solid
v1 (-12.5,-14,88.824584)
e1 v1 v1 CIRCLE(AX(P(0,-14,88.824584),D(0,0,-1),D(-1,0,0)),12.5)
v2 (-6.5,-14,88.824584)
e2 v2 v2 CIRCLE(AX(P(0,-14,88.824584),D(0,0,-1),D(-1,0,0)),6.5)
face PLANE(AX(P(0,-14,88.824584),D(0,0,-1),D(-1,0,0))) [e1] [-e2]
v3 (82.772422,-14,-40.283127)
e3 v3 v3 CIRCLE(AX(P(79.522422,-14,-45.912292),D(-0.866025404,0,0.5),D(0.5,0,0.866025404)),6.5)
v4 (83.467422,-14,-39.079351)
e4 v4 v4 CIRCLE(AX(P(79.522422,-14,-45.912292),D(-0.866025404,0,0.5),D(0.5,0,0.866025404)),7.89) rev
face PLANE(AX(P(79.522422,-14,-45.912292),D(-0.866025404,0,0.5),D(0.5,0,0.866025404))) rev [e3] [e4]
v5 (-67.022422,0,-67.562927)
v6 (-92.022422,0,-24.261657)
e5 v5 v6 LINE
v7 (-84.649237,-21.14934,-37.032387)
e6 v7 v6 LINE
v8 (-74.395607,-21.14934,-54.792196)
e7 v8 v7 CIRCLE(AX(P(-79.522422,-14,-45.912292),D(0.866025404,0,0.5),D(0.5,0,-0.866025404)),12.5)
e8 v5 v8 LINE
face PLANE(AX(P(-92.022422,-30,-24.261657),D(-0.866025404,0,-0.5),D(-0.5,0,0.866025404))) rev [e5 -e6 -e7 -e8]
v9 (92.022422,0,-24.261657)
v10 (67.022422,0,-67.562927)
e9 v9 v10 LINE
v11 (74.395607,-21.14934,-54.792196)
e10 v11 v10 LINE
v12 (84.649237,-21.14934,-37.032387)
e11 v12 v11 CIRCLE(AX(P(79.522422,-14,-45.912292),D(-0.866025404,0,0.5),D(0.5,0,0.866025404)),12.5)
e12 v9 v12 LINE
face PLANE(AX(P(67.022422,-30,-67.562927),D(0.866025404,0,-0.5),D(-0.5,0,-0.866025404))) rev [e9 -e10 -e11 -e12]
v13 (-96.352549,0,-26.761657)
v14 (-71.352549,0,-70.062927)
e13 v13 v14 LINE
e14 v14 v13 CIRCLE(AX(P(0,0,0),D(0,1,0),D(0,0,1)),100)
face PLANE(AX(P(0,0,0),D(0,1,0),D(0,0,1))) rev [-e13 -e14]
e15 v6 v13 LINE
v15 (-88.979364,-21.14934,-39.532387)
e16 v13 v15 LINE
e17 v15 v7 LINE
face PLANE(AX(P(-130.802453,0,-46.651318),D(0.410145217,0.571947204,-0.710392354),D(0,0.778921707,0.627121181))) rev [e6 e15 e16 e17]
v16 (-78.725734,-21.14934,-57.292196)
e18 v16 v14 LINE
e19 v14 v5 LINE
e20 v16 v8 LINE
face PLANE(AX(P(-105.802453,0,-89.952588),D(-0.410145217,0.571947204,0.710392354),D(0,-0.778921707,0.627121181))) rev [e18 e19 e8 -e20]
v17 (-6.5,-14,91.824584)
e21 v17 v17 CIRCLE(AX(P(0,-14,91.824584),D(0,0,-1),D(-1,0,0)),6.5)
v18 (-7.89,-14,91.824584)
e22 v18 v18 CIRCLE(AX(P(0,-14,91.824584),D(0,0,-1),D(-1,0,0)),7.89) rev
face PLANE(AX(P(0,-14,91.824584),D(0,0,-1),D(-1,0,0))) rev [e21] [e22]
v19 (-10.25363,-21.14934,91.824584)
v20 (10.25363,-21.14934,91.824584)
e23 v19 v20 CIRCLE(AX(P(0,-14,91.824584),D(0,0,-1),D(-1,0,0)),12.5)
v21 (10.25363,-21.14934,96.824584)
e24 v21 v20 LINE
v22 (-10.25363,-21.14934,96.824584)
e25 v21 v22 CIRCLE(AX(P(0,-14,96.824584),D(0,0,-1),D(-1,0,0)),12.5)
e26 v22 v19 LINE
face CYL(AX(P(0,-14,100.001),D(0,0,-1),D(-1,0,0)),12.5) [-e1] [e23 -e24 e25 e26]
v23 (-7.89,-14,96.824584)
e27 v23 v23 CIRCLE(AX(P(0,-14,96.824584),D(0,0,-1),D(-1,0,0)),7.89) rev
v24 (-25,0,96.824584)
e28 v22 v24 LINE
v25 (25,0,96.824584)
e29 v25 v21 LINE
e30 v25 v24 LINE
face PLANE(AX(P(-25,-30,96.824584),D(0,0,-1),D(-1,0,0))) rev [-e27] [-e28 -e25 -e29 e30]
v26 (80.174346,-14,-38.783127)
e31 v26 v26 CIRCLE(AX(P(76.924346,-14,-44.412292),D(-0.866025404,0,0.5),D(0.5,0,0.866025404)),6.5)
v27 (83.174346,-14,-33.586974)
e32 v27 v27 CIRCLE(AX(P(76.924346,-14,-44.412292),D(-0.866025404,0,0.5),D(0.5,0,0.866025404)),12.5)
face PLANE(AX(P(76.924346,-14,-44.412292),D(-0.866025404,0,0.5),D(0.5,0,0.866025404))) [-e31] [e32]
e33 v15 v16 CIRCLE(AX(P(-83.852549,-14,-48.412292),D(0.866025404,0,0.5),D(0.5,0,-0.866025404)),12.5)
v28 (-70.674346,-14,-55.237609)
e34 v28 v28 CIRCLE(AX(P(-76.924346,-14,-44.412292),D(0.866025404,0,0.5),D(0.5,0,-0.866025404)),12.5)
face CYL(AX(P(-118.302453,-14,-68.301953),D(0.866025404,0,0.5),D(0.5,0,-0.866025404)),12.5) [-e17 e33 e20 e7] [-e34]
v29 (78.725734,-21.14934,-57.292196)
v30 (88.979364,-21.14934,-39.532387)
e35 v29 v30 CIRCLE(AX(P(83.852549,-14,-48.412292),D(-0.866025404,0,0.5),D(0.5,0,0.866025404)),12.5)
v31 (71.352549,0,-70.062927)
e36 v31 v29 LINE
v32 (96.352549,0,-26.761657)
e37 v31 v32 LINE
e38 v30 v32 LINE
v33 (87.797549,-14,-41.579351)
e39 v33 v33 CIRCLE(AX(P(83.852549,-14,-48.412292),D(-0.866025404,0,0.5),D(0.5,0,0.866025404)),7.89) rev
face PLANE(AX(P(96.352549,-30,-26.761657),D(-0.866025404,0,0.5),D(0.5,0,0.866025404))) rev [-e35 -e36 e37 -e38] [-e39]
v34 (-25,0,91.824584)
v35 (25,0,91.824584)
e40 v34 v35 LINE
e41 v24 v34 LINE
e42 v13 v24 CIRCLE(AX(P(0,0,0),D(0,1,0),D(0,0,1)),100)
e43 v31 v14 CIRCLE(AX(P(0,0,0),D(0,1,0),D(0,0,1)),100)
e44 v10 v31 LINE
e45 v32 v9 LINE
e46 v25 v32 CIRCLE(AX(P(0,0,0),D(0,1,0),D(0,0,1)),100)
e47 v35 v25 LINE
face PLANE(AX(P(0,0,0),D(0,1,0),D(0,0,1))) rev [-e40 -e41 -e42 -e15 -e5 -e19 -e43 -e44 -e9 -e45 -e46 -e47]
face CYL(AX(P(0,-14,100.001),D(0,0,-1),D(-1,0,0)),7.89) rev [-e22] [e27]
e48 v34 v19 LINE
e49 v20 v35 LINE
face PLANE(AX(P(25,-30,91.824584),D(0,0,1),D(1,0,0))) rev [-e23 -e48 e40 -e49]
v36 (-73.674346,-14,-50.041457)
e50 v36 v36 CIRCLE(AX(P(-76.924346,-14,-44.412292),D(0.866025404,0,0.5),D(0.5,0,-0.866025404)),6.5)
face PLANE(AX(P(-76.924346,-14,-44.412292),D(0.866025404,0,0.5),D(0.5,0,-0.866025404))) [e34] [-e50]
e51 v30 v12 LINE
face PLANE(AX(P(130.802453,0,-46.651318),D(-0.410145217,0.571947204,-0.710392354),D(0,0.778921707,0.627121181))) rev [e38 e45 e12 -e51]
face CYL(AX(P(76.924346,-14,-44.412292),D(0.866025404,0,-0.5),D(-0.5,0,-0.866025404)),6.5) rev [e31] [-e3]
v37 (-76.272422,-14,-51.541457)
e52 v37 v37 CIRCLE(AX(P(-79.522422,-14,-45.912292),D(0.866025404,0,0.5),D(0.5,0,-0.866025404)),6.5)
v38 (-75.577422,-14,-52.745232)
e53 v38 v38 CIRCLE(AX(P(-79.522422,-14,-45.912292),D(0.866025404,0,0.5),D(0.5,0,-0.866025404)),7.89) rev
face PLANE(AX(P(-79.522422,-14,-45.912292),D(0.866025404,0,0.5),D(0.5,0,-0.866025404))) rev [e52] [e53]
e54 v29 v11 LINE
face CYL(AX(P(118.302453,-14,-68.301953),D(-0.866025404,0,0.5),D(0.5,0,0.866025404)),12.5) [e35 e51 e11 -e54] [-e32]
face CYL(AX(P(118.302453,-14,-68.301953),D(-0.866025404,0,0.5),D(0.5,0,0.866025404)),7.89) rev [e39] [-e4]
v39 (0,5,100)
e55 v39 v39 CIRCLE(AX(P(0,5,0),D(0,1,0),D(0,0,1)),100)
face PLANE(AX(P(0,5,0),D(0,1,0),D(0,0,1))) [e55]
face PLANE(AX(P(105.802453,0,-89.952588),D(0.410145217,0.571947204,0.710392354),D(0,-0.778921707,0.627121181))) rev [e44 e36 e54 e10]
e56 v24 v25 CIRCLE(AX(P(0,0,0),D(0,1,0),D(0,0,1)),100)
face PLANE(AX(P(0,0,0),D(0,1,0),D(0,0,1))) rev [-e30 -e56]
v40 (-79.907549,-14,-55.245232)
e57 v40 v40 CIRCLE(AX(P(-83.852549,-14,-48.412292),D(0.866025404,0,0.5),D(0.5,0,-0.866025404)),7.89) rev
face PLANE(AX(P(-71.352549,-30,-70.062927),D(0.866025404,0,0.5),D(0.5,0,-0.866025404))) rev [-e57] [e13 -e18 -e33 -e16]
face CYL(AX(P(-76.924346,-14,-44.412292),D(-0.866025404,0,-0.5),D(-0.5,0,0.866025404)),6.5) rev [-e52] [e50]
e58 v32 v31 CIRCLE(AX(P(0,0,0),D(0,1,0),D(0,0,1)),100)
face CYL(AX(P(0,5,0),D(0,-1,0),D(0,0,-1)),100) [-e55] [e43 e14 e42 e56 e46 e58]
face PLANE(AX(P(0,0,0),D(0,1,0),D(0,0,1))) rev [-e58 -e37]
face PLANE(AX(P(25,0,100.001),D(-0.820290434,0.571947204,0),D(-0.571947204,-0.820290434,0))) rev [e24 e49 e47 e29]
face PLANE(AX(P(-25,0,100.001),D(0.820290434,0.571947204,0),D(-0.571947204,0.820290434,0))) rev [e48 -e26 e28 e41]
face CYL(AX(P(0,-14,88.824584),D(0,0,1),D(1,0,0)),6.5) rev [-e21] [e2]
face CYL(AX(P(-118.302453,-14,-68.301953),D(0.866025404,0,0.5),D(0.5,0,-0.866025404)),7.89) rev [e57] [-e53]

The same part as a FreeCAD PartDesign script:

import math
import FreeCAD as App
import Part
import Sketcher

V = App.Vector
Q = App.Units.Quantity


def add_polygon(sketch, points):
    """Adds a closed chain of lines whose ends are joined by coincident constraints."""
    first, n = sketch.GeometryCount, len(points)
    for a, b in zip(points, points[1:] + points[:1]):
        sketch.addGeometry(Part.LineSegment(App.Vector(*a, 0), App.Vector(*b, 0)), False)
    for i in range(n):
        sketch.addConstraint(Sketcher.Constraint("Coincident", first + i, 2, first + (i + 1) % n, 1))

doc = App.newDocument("Part")
body = doc.addObject("PartDesign::Body", "Body")

# Sketch on XZ plane
sketch1 = body.newObject("Sketcher::SketchObject", "Sketch")
sketch1.AttachmentSupport = (doc.getObject("XZ_Plane"), [""])
sketch1.MapMode = "FlatFace"
sketch1.addGeometry(Part.Circle(V(0, 0, 0), V(0, 0, 1), 100), False)
sketch1.addConstraint([
    Sketcher.Constraint("Coincident", 0, 3, -1, 1),
    Sketcher.Constraint("Diameter", 0, Q("200 mm")),
])
pad1 = body.newObject("PartDesign::Pad", "Pad")
pad1.Profile = sketch1
pad1.Length = 5
pad1.Reversed = True

# Sketch on XZ plane
sketch2 = body.newObject("Sketcher::SketchObject", "Sketch001")
sketch2.AttachmentSupport = (doc.getObject("XZ_Plane"), [""])
sketch2.MapMode = "FlatFace"
add_polygon(sketch2, [(-25, 97), (-25, 92), (25, 92), (25, 97)])  # lines 0-3
sketch2.addConstraint([
    Sketcher.Constraint("Vertical", 0),
    Sketcher.Constraint("Horizontal", 1),
    Sketcher.Constraint("Vertical", 2),
    Sketcher.Constraint("Horizontal", 3),
    Sketcher.Constraint("DistanceX", 1, 1, 1, 2, Q("50 mm")),
    Sketcher.Constraint("DistanceY", 0, 2, 0, 1, Q("5 mm")),
    Sketcher.Constraint("DistanceX", 0, 2, -1, 1, Q("25 mm")),
    Sketcher.Constraint("DistanceY", -1, 1, 0, 2, Q("91.824584 mm")),
])
pad2 = body.newObject("PartDesign::Pad", "Pad001")
pad2.Profile = sketch2
pad2.Length = 30

# Sketch on XY plane
sketch3 = body.newObject("Sketcher::SketchObject", "Sketch002")
sketch3.AttachmentSupport = (doc.getObject("XY_Plane"), [""])
sketch3.MapMode = "FlatFace"
sketch3.AttachmentOffset = App.Placement(V(0, 0, 91.824584), App.Rotation())
sketch3.addGeometry([
    Part.Circle(V(0, -14, 0), V(0, 0, 1), 8),  # 0
    Part.LineSegment(V(-25, 0, 0), V(-10, -21, 0)),  # 1
    Part.ArcOfCircle(Part.Circle(V(0, -14, 0), V(0, 0, 1), 13), math.radians(-145), math.radians(-35)),  # 2
    Part.LineSegment(V(10, -21, 0), V(25, 0, 0)),  # 3
    Part.LineSegment(V(25, 0, 0), V(25, -31, 0)),  # 4
    Part.LineSegment(V(25, -31, 0), V(-25, -31, 0)),  # 5
    Part.LineSegment(V(-25, -31, 0), V(-25, 0, 0)),  # 6
], False)
sketch3.addConstraint([
    Sketcher.Constraint("Tangent", 1, 2, 2, 1),
    Sketcher.Constraint("Tangent", 2, 2, 3, 1),
    Sketcher.Constraint("Coincident", 3, 2, 4, 1),
    Sketcher.Constraint("Coincident", 4, 2, 5, 1),
    Sketcher.Constraint("Coincident", 5, 2, 6, 1),
    Sketcher.Constraint("Coincident", 6, 2, 1, 1),
    Sketcher.Constraint("Vertical", 4),
    Sketcher.Constraint("Horizontal", 5),
    Sketcher.Constraint("Vertical", 6),
    Sketcher.Constraint("Coincident", 2, 3, 0, 3),
    Sketcher.Constraint("Symmetric", 3, 2, 6, 2, -1, 1),
    Sketcher.Constraint("Symmetric", 1, 2, 2, 2, -2),
    Sketcher.Constraint("Radius", 2, Q("12.5 mm")),
    Sketcher.Constraint("Diameter", 0, Q("15.78 mm")),
    Sketcher.Constraint("DistanceX", 5, 2, 5, 1, Q("50 mm")),
    Sketcher.Constraint("DistanceY", 0, 3, -1, 1, Q("14 mm")),
    Sketcher.Constraint("DistanceY", 4, 2, 4, 1, Q("30.813241 mm")),
])
pocket1 = body.newObject("PartDesign::Pocket", "Pocket")
pocket1.Profile = sketch3
pocket1.Length = 5
pocket1.Reversed = True
doc.recompute()

polarpattern = body.newObject("PartDesign::PolarPattern", "PolarPattern")
polarpattern.Originals = [pad2, pocket1]
polarpattern.Axis = (doc.getObject("Y_Axis"), [""])
polarpattern.Angle = 360
polarpattern.Occurrences = 3
body.Tip = polarpattern

# Sketch on XY plane
sketch4 = body.newObject("Sketcher::SketchObject", "Sketch003")
sketch4.AttachmentSupport = (doc.getObject("XY_Plane"), [""])
sketch4.MapMode = "FlatFace"
sketch4.AttachmentOffset = App.Placement(V(0, 0, 91.824584), App.Rotation())
sketch4.addGeometry([
    Part.Circle(V(0, -14, 0), V(0, 0, 1), 12),
    Part.Circle(V(0, -14, 0), V(0, 0, 1), 6),
], False)
sketch4.addConstraint([
    Sketcher.Constraint("Coincident", 1, 3, 0, 3),
    Sketcher.Constraint("PointOnObject", 0, 3, -2),
    Sketcher.Constraint("Diameter", 0, Q("25 mm")),
    Sketcher.Constraint("Diameter", 1, Q("13 mm")),
    Sketcher.Constraint("DistanceY", 0, 3, -1, 1, Q("14 mm")),
])
pad3 = body.newObject("PartDesign::Pad", "Pad002")
pad3.Profile = sketch4
pad3.Length = 3
pad3.Reversed = True
doc.recompute()

polarpattern2 = body.newObject("PartDesign::PolarPattern", "PolarPattern001")
polarpattern2.Originals = [pad3]
polarpattern2.Axis = (doc.getObject("Y_Axis"), [""])
polarpattern2.Angle = 360
polarpattern2.Occurrences = 3
body.Tip = polarpattern2

doc.recompute()
